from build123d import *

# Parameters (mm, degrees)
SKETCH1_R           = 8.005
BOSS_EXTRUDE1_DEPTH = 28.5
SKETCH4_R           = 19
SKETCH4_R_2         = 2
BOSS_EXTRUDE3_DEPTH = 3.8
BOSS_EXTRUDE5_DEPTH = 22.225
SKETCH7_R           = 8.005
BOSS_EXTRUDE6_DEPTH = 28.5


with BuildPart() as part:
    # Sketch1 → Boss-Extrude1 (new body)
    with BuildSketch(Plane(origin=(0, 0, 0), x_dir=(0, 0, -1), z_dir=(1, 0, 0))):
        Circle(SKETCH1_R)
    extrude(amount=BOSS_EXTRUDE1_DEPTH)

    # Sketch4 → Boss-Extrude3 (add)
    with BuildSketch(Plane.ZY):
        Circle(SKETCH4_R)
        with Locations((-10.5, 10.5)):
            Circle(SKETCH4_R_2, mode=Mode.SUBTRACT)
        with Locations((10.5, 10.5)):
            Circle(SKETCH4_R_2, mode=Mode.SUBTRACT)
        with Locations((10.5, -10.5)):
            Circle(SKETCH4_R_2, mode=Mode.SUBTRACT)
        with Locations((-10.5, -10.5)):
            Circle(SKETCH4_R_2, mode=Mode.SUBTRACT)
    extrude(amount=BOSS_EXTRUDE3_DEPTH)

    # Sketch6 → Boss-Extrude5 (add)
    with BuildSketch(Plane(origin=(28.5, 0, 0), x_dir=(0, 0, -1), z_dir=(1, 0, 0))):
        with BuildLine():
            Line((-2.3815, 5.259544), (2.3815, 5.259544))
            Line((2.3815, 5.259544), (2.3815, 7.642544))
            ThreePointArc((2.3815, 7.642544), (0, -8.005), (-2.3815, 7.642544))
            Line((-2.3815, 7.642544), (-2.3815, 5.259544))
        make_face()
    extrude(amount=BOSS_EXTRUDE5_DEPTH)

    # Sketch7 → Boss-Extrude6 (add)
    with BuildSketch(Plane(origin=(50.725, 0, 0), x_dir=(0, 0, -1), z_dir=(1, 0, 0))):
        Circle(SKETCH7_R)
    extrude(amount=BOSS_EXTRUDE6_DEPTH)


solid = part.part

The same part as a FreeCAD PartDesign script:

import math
import FreeCAD as App
import Part
import Sketcher

doc = App.newDocument("Part")
body = doc.addObject("PartDesign::Body", "Body")

# Sketch on YZ plane
sketch1 = body.newObject("Sketcher::SketchObject", "Sketch")
sketch1.AttachmentSupport = (doc.getObject("YZ_Plane"), [""])
sketch1.MapMode = "FlatFace"
sketch1.addGeometry(Part.Circle(App.Vector(0, 0, 0), App.Vector(0, 0, 1), 8), False)
sketch1.addConstraint([
    Sketcher.Constraint("Coincident", 0, 3, -1, 1),
    Sketcher.Constraint("Diameter", 0, 16.01),
])
pad1 = body.newObject("PartDesign::Pad", "Pad")
pad1.Profile = sketch1
pad1.Length = 28.5

# Sketch on YZ plane
sketch2 = body.newObject("Sketcher::SketchObject", "Sketch001")
sketch2.AttachmentSupport = (doc.getObject("YZ_Plane"), [""])
sketch2.MapMode = "FlatFace"
sketch2.addGeometry([
    Part.Circle(App.Vector(0, 0, 0), App.Vector(0, 0, 1), 19),  # 0
    Part.Circle(App.Vector(-10.5, -10.5, 0), App.Vector(0, 0, 1), 2),  # 1
    Part.Circle(App.Vector(-10.5, 10.5, 0), App.Vector(0, 0, 1), 2),  # 2
    Part.Circle(App.Vector(10.5, -10.5, 0), App.Vector(0, 0, 1), 2),  # 3
    Part.Circle(App.Vector(10.5, 10.5, 0), App.Vector(0, 0, 1), 2),  # 4
], False)
sketch2.addConstraint([
    Sketcher.Constraint("Coincident", 0, 3, -1, 1),
    Sketcher.Constraint("Equal", 1, 2),
    Sketcher.Constraint("Equal", 2, 3),
    Sketcher.Constraint("Equal", 3, 4),
    Sketcher.Constraint("Symmetric", 2, 3, 3, 3, -1, 1),
    Sketcher.Constraint("Symmetric", 1, 3, 4, 3, -1, 1),
    Sketcher.Constraint("Symmetric", 1, 3, 3, 3, -2),
    Sketcher.Constraint("Diameter", 0, 38.0),
    Sketcher.Constraint("Diameter", 1, 4.0),
    Sketcher.Constraint("DistanceY", 1, 3, 2, 3, 21.0),
    Sketcher.Constraint("DistanceX", 1, 3, 3, 3, 21.0),
])
pad2 = body.newObject("PartDesign::Pad", "Pad001")
pad2.Profile = sketch2
pad2.Length = 3.8
pad2.Reversed = True

# Sketch on YZ plane
sketch3 = body.newObject("Sketcher::SketchObject", "Sketch002")
sketch3.AttachmentSupport = (doc.getObject("YZ_Plane"), [""])
sketch3.MapMode = "FlatFace"
sketch3.AttachmentOffset = App.Placement(App.Vector(0, 0, 28.5), App.Rotation())
sketch3.addGeometry([
    Part.LineSegment(App.Vector(5.3, -2.4, 0), App.Vector(5.3, 2.4, 0)),
    Part.LineSegment(App.Vector(5.3, 2.4, 0), App.Vector(7.6, 2.4, 0)),
    Part.ArcOfCircle(Part.Circle(App.Vector(0, 0, 0), App.Vector(0, 0, 1), 8), math.radians(17), math.radians(343)),
    Part.LineSegment(App.Vector(7.6, -2.4, 0), App.Vector(5.3, -2.4, 0)),
], False)
sketch3.addConstraint([
    Sketcher.Constraint("Coincident", 0, 2, 1, 1),
    Sketcher.Constraint("Coincident", 1, 2, 2, 1),
    Sketcher.Constraint("Coincident", 2, 2, 3, 1),
    Sketcher.Constraint("Coincident", 3, 2, 0, 1),
    Sketcher.Constraint("Vertical", 0),
    Sketcher.Constraint("Horizontal", 1),
    Sketcher.Constraint("Horizontal", 3),
    Sketcher.Constraint("Coincident", 2, 3, -1, 1),
    Sketcher.Constraint("Vertical", 1, 2, 2, 2),
    Sketcher.Constraint("Radius", 2, 8.005),
    Sketcher.Constraint("DistanceX", 1, 1, 1, 2, 2.383),
    Sketcher.Constraint("DistanceY", 0, 1, 0, 2, 4.763),
])
pad3 = body.newObject("PartDesign::Pad", "Pad002")
pad3.Profile = sketch3
pad3.Length = 22.225

# Sketch on YZ plane
sketch4 = body.newObject("Sketcher::SketchObject", "Sketch003")
sketch4.AttachmentSupport = (doc.getObject("YZ_Plane"), [""])
sketch4.MapMode = "FlatFace"
sketch4.AttachmentOffset = App.Placement(App.Vector(0, 0, 50.725), App.Rotation())
sketch4.addGeometry(Part.Circle(App.Vector(0, 0, 0), App.Vector(0, 0, 1), 8), False)
sketch4.addConstraint([
    Sketcher.Constraint("Coincident", 0, 3, -1, 1),
    Sketcher.Constraint("Diameter", 0, 16.01),
])
pad4 = body.newObject("PartDesign::Pad", "Pad003")
pad4.Profile = sketch4
pad4.Length = 28.5

doc.recompute()
